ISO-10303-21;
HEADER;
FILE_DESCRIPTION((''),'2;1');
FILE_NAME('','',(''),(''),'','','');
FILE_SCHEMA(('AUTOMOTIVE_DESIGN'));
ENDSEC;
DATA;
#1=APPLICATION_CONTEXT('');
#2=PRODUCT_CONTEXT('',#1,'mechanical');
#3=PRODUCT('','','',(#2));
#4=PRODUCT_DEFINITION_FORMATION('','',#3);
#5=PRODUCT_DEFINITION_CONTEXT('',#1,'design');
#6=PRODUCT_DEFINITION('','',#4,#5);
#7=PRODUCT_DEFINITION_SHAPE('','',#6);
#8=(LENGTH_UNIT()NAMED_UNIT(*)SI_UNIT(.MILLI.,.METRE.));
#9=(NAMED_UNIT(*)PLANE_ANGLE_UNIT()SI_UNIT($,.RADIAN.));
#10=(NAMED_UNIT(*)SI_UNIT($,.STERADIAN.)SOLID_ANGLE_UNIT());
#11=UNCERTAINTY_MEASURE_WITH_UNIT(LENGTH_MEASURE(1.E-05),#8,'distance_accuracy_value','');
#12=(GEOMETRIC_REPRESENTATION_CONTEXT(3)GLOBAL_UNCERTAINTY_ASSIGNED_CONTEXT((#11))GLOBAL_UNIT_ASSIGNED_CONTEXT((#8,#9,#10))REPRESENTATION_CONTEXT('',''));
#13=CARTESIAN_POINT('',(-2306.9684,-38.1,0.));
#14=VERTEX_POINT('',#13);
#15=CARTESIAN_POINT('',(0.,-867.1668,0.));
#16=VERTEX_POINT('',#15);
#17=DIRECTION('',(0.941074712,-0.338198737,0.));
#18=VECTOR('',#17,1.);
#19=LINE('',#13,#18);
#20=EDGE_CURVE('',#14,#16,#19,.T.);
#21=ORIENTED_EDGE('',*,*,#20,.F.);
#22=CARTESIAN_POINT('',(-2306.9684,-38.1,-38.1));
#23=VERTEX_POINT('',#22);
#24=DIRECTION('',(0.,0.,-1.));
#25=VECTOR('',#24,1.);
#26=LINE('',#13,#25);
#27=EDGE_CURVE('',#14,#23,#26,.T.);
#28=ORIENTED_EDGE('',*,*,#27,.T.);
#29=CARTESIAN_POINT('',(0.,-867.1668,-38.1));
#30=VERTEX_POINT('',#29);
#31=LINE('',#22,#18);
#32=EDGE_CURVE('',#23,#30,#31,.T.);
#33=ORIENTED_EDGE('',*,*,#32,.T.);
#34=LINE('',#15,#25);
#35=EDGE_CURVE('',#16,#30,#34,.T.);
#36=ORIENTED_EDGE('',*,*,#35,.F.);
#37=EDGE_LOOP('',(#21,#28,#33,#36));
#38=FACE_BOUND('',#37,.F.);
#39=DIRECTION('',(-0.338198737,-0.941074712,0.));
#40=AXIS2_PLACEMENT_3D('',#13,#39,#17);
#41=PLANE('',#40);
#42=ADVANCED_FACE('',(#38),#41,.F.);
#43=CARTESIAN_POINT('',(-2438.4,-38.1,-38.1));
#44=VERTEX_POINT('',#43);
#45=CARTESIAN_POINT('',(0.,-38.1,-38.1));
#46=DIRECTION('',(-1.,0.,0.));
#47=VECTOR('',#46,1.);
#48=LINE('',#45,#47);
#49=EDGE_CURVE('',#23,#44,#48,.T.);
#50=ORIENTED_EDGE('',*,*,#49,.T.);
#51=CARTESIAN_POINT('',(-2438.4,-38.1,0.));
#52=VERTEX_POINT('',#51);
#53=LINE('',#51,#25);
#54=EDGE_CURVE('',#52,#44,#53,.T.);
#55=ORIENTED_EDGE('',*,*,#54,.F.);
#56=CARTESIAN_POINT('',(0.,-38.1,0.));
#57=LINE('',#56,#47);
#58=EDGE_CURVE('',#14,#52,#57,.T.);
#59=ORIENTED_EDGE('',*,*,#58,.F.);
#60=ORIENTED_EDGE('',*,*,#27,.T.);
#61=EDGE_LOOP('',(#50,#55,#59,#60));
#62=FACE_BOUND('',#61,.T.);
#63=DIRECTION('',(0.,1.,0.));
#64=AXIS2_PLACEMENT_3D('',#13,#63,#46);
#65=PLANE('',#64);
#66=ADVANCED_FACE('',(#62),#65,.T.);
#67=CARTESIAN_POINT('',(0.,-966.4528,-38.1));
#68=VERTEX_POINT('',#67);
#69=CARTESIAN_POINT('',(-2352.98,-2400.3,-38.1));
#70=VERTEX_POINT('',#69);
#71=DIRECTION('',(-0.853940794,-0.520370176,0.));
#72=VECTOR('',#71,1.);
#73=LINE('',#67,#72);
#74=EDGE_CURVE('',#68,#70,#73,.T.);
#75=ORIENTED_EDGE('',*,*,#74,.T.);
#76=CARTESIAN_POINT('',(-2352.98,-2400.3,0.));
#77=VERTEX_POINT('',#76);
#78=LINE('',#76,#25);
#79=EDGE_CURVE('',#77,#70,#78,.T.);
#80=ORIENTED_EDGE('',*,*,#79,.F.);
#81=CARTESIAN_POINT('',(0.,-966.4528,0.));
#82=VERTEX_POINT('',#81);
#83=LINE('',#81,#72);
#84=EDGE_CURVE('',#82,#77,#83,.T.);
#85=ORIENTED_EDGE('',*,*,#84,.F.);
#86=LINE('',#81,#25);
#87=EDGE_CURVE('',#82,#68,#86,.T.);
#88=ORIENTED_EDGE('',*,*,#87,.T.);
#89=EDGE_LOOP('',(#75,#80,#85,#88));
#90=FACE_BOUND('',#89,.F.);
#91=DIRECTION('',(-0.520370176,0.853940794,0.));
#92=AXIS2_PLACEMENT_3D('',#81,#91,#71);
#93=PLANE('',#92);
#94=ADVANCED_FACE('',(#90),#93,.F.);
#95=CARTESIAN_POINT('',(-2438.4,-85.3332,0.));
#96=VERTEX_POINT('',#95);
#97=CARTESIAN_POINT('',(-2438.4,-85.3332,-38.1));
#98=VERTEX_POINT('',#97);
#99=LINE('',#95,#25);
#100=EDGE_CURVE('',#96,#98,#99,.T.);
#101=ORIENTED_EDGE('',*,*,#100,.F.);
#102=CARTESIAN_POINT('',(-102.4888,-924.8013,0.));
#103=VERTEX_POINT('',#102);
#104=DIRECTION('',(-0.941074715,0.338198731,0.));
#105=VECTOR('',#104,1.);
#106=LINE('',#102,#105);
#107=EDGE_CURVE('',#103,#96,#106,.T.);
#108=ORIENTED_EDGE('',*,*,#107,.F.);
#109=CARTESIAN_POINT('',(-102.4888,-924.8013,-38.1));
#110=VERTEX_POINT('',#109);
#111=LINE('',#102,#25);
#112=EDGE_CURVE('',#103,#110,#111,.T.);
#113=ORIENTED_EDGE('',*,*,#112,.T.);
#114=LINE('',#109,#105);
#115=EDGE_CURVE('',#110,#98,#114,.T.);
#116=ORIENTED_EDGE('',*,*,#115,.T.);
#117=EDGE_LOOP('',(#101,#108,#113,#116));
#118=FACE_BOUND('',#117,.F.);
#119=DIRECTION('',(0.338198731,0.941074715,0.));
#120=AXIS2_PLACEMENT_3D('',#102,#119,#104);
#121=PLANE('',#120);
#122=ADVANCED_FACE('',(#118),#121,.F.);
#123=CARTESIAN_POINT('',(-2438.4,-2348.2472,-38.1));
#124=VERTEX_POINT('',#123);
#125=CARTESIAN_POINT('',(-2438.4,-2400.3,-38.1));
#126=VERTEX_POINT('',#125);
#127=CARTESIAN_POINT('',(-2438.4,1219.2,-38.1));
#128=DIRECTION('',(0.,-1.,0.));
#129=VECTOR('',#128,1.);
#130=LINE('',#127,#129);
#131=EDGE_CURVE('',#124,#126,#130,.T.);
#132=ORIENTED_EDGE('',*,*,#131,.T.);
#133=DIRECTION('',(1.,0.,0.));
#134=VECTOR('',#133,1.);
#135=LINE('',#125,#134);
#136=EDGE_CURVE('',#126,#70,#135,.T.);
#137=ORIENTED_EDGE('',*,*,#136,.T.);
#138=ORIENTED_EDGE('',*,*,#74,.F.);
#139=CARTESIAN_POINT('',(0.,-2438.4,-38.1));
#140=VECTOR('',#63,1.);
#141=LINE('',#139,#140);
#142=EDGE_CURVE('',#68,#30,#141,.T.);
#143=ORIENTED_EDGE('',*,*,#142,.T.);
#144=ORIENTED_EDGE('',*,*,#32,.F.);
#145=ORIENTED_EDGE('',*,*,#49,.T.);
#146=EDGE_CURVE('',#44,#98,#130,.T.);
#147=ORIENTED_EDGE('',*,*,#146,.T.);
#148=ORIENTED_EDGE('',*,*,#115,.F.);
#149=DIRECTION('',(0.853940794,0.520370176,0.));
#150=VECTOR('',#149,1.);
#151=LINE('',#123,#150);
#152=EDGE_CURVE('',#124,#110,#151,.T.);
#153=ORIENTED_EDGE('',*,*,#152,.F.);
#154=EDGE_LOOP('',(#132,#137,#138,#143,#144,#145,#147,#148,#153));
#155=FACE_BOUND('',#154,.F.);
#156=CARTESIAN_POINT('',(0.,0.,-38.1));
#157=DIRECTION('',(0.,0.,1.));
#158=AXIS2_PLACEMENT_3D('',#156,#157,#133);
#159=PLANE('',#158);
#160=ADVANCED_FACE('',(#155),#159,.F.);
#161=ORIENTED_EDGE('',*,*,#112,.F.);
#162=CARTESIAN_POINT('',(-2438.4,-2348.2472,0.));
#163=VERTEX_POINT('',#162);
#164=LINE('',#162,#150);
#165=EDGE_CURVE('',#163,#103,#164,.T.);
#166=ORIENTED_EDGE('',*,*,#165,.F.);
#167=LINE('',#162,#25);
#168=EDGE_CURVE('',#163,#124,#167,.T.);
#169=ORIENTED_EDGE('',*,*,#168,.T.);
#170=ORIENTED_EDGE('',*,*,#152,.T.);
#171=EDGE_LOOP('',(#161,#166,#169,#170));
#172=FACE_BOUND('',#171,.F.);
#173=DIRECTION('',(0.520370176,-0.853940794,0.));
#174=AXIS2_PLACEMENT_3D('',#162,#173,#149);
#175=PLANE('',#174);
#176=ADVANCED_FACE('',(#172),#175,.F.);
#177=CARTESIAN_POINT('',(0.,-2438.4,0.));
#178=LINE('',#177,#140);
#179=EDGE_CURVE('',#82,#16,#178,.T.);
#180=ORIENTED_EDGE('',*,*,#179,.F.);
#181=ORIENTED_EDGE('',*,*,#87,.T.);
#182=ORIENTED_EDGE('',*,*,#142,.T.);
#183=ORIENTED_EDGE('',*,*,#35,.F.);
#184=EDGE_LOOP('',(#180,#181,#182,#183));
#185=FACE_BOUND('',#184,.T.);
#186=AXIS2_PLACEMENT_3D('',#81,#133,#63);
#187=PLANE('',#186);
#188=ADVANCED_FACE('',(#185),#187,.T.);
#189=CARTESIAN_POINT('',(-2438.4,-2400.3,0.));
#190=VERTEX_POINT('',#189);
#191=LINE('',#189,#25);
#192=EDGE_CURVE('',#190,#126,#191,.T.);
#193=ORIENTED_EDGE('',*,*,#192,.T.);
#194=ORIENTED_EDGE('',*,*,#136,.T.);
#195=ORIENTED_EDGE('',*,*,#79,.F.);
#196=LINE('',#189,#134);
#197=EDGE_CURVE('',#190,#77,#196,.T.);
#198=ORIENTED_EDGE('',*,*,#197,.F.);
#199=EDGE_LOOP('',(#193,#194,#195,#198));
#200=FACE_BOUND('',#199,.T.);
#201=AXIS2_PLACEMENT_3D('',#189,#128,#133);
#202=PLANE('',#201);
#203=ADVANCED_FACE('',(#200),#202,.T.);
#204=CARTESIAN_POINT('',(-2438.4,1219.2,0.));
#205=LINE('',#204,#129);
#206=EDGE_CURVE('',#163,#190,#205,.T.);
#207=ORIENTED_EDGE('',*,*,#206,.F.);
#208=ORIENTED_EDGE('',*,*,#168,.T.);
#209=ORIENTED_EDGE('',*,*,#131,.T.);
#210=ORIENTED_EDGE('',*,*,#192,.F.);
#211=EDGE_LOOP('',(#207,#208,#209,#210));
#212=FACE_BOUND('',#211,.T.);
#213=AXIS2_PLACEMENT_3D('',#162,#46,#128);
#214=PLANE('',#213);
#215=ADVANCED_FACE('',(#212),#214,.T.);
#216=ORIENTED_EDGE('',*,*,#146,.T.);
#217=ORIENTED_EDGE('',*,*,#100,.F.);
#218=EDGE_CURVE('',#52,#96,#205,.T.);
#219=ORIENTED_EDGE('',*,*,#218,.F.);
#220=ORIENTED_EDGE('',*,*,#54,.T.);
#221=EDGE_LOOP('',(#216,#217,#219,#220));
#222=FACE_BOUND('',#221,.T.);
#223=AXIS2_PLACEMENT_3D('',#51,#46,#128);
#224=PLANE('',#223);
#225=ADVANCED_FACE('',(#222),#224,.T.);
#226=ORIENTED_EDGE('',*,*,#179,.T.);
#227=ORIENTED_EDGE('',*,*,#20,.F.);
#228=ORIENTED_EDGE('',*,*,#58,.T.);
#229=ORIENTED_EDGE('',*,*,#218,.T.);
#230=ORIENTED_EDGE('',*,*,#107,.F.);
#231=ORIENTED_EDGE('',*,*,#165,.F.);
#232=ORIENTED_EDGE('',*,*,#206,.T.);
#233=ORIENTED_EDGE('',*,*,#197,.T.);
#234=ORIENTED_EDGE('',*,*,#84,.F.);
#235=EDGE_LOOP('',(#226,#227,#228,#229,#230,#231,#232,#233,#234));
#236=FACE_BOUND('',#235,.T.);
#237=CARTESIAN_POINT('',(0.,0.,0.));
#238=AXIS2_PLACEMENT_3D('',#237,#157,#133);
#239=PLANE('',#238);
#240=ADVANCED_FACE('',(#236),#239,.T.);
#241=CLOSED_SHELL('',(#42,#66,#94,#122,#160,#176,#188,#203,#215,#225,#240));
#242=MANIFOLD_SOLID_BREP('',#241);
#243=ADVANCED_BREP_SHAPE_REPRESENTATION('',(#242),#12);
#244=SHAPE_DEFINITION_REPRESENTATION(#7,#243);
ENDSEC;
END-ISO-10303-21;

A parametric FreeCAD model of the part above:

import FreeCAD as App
import Part
import Sketcher

V = App.Vector
Q = App.Units.Quantity


def add_polygon(sketch, points):
    """Adds a closed chain of lines whose ends are joined by coincident constraints."""
    first, n = sketch.GeometryCount, len(points)
    for a, b in zip(points, points[1:] + points[:1]):
        sketch.addGeometry(Part.LineSegment(App.Vector(*a, 0), App.Vector(*b, 0)), False)
    for i in range(n):
        sketch.addConstraint(Sketcher.Constraint("Coincident", first + i, 2, first + (i + 1) % n, 1))

doc = App.newDocument("Part")
body = doc.addObject("PartDesign::Body", "Body")

# Sketch on XY plane
sketch1 = body.newObject("Sketcher::SketchObject", "Sketch")
sketch1.AttachmentSupport = (doc.getObject("XY_Plane"), [""])
sketch1.MapMode = "FlatFace"
add_polygon(sketch1, [(-2438.4, -2348.2472), (-2438.4, -2400.3), (-2352.98, -2400.3), (0, -966.4528), (0, -867.1668), (-2306.9684, -38.1), (-2438.4, -38.1), (-2438.4, -85.3332), (-102.4888, -924.8013)])  # lines 0-8
sketch1.addConstraint(Sketcher.Constraint("Vertical", 0))
sketch1.addConstraint(Sketcher.Constraint("Horizontal", 1))
sketch1.addConstraint(Sketcher.Constraint("Vertical", 3))
sketch1.addConstraint(Sketcher.Constraint("Horizontal", 5))
sketch1.addConstraint(Sketcher.Constraint("Vertical", 6))
sketch1.addConstraint(Sketcher.Constraint("PointOnObject", 2, 2, -2))
sketch1.addConstraint(Sketcher.Constraint("DistanceX", 0, 2, -1, 1, Q("96 in")))
sketch1.addConstraint(Sketcher.Constraint("DistanceX", 5, 2, -1, 1, Q("96 in")))
sketch1.addConstraint(Sketcher.Constraint("DistanceY", 1, 2, 4, 2, Q("93 in")))
sketch1.addConstraint(Sketcher.Constraint("DistanceY", 0, 2, -1, 1, Q("94.5 in")))
sketch1.addConstraint(Sketcher.Constraint("DistanceX", 1, 1, 1, 2, Q("3.363 in")))
sketch1.addConstraint(Sketcher.Constraint("DistanceY", 3, 1, 3, 2, Q("3.9089 in")))
sketch1.addConstraint(Sketcher.Constraint("DistanceX", 7, 2, -1, 1, Q("4.035 in")))
sketch1.addConstraint(Sketcher.Constraint("DistanceX", 5, 2, 5, 1, Q("131.4316 mm")))
sketch1.addConstraint(Sketcher.Constraint("DistanceY", 0, 2, 0, 1, Q("52.0528 mm")))
sketch1.addConstraint(Sketcher.Constraint("DistanceY", 6, 2, 6, 1, Q("47.2332 mm")))
sketch1.addConstraint(Sketcher.Constraint("DistanceY", 7, 2, -1, 1, Q("36.4095 in")))
sketch1.addConstraint(Sketcher.Constraint("Distance", 2, Q("2755.437 mm")))
pad1 = body.newObject("PartDesign::Pad", "Pad")
pad1.Profile = sketch1
pad1.Length = Q("1.5 in")
pad1.Reversed = True

doc.recompute()
